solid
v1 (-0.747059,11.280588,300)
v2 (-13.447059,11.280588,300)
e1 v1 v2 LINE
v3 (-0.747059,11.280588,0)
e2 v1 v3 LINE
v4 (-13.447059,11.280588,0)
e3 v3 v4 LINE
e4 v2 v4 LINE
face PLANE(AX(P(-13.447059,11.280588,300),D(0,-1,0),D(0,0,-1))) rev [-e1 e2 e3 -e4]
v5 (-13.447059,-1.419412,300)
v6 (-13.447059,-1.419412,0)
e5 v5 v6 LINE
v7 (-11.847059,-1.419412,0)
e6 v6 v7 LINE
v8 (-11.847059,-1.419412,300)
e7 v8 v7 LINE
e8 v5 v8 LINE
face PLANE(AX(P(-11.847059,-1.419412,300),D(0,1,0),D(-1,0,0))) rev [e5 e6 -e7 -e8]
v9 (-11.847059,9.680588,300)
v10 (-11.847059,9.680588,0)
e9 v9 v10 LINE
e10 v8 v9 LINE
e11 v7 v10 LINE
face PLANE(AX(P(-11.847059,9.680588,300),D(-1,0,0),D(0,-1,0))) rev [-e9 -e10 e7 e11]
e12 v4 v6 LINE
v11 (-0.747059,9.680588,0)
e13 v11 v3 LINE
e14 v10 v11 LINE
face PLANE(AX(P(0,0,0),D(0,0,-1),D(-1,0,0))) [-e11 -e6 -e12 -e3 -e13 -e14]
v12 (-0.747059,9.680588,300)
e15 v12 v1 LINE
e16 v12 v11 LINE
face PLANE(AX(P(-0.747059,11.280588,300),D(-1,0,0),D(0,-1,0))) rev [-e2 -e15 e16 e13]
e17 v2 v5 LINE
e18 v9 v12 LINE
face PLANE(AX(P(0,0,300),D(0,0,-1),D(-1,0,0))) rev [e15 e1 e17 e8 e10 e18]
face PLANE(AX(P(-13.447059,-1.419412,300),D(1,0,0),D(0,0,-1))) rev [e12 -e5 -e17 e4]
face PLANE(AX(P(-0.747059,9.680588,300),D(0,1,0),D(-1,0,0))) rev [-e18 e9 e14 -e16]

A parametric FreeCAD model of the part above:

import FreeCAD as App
import Part
import Sketcher
from FreeCAD import Vector


def add_polygon(sketch, points):
    """Adds a closed chain of lines whose ends are joined by coincident constraints."""
    first, n = sketch.GeometryCount, len(points)
    for a, b in zip(points, points[1:] + points[:1]):
        sketch.addGeometry(Part.LineSegment(App.Vector(*a, 0), App.Vector(*b, 0)), False)
    for i in range(n):
        sketch.addConstraint(Sketcher.Constraint("Coincident", first + i, 2, first + (i + 1) % n, 1))

doc = App.newDocument("Part")
params = doc.addObject("Spreadsheet::Sheet", "Params")
for row, (alias, value) in enumerate([
    ("sketch1_width", "12.7 mm"),
    ("sketch1_width2", "1.6 mm"),
    ("pad1_length", "300 mm"),
], start=1):
    params.set(f"A{row}", alias)
    params.set(f"B{row}", "=" + value)
    params.setAlias(f"B{row}", alias)

body = doc.addObject("PartDesign::Body", "Body")

# Sketch on XY plane
sketch1 = body.newObject("Sketcher::SketchObject", "Sketch")
sketch1.AttachmentSupport = (doc.getObject("XY_Plane"), [""])
sketch1.MapMode = "FlatFace"
add_polygon(sketch1, [(-0.7, 11.3), (-13.4, 11.3), (-13.4, -1.4), (-11.8, -1.4), (-11.8, 9.7), (-0.7, 9.7)])  # lines 0-5
sketch1.addConstraint([
    Sketcher.Constraint("Horizontal", 0),
    Sketcher.Constraint("Vertical", 1),
    Sketcher.Constraint("Horizontal", 2),
    Sketcher.Constraint("Vertical", 3),
    Sketcher.Constraint("Horizontal", 4),
    Sketcher.Constraint("Vertical", 5),
    Sketcher.Constraint("Equal", 0, 1),
    Sketcher.Constraint("Equal", 4, 3),
    Sketcher.Constraint("DistanceX", 0, 2, 0, 1, 12.7),
    Sketcher.Constraint("DistanceX", 2, 1, 2, 2, 1.6),
    Sketcher.Constraint("DistanceX", 0, 2, -1, 1, 13.447059),
    Sketcher.Constraint("DistanceY", -1, 1, 0, 2, 11.280588),
])
sketch1.setExpression("Constraints[14]", "Params.sketch1_width")
sketch1.setExpression("Constraints[15]", "Params.sketch1_width2")
pad1 = body.newObject("PartDesign::Pad", "Pad")
pad1.Profile = sketch1
pad1.setExpression("Length", "Params.pad1_length")

doc.recompute()
